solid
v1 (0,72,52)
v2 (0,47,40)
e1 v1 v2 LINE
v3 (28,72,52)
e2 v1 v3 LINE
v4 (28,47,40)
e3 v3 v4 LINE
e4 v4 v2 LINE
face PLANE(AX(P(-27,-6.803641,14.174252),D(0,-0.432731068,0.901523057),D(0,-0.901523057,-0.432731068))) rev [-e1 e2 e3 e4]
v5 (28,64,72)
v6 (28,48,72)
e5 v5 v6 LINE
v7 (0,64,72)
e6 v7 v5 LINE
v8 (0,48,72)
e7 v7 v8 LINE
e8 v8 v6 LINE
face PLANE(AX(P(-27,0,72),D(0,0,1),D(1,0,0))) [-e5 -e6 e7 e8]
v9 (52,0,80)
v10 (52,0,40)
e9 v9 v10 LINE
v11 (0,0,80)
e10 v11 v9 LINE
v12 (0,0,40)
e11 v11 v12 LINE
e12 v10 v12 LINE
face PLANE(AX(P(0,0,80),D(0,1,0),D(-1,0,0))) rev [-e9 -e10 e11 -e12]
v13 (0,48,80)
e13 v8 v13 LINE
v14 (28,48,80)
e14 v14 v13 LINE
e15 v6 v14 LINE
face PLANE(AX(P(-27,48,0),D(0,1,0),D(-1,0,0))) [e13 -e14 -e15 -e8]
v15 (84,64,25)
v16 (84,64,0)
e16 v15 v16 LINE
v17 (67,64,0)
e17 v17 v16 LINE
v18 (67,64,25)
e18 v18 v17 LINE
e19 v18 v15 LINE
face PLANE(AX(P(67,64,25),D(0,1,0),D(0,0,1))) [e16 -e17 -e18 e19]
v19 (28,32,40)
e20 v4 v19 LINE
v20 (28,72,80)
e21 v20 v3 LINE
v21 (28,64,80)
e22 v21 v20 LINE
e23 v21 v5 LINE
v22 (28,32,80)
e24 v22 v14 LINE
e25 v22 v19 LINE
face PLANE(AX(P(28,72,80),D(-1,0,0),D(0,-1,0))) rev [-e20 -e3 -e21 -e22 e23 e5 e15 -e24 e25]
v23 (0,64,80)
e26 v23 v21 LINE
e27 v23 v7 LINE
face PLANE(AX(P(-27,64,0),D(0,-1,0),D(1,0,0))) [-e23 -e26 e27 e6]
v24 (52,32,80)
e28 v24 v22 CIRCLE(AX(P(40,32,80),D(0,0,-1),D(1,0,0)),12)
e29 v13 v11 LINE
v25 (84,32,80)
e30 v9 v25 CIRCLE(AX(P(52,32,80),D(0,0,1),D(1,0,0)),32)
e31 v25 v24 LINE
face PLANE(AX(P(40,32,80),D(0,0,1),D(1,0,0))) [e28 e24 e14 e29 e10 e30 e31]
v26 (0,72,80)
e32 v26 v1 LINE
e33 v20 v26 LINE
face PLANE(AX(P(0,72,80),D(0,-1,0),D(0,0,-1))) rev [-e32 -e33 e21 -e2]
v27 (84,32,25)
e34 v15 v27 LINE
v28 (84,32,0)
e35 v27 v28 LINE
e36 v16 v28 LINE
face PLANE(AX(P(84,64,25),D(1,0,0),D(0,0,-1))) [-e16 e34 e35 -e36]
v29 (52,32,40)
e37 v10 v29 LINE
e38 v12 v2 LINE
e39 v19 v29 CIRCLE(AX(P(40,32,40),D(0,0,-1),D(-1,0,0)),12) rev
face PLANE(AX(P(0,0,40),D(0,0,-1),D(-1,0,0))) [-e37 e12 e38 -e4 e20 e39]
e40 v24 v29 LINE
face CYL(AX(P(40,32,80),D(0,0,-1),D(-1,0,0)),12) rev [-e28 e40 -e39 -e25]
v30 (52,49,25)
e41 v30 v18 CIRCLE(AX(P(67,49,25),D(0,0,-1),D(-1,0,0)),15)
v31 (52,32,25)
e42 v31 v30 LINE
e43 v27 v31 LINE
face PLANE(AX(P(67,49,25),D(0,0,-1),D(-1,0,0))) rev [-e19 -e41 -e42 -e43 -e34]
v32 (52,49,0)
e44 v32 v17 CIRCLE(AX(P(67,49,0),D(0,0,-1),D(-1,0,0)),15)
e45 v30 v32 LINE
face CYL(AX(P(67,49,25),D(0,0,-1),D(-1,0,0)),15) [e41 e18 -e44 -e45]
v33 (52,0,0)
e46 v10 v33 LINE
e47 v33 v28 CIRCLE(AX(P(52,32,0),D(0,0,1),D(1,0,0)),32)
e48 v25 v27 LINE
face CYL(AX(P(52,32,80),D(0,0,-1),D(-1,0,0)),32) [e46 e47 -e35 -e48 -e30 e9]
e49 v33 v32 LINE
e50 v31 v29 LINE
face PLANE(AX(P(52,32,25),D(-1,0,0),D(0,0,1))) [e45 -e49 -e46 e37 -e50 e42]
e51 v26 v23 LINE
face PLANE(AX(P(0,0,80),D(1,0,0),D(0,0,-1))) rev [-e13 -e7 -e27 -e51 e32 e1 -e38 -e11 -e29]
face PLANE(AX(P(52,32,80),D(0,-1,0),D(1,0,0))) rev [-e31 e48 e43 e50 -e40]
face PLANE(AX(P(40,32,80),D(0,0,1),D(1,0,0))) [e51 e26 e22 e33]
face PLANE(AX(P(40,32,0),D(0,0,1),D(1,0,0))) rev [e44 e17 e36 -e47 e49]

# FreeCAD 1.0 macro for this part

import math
import FreeCAD as App
import Part
import Sketcher
from FreeCAD import Vector


def add_polygon(sketch, points):
    """Adds a closed chain of lines whose ends are joined by coincident constraints."""
    first, n = sketch.GeometryCount, len(points)
    for a, b in zip(points, points[1:] + points[:1]):
        sketch.addGeometry(Part.LineSegment(App.Vector(*a, 0), App.Vector(*b, 0)), False)
    for i in range(n):
        sketch.addConstraint(Sketcher.Constraint("Coincident", first + i, 2, first + (i + 1) % n, 1))

doc = App.newDocument("Part")
body = doc.addObject("PartDesign::Body", "Body")

# Sketch on XY plane
sketch1 = body.newObject("Sketcher::SketchObject", "Sketch")
sketch1.AttachmentSupport = (doc.getObject("XY_Plane"), [""])
sketch1.MapMode = "FlatFace"
sketch1.addGeometry(Part.LineSegment(Vector(0, 0, 0), Vector(52, 0, 0)), False)
sketch1.addGeometry(Part.ArcOfCircle(Part.Circle(Vector(52, 32, 0), Vector(0, 0, 1), 32), math.radians(-90), math.radians(0)), False)
sketch1.addGeometry(Part.LineSegment(Vector(84, 32, 0), Vector(52, 32, 0)), False)
sketch1.addGeometry(Part.ArcOfCircle(Part.Circle(Vector(40, 32, 0), Vector(0, 0, 1), 12), math.radians(180), math.radians(360)), False)
sketch1.addGeometry(Part.LineSegment(Vector(28, 32, 0), Vector(28, 72, 0)), False)
sketch1.addGeometry(Part.LineSegment(Vector(28, 72, 0), Vector(0, 72, 0)), False)
sketch1.addGeometry(Part.LineSegment(Vector(0, 72, 0), Vector(0, 0, 0)), False)
sketch1.addConstraint(Sketcher.Constraint("Tangent", 0, 2, 1, 1))
sketch1.addConstraint(Sketcher.Constraint("Coincident", 1, 2, 2, 1))
sketch1.addConstraint(Sketcher.Constraint("Coincident", 2, 2, 3, 2))
sketch1.addConstraint(Sketcher.Constraint("Tangent", 3, 1, 4, 1))
sketch1.addConstraint(Sketcher.Constraint("Coincident", 4, 2, 5, 1))
sketch1.addConstraint(Sketcher.Constraint("Coincident", 5, 2, 6, 1))
sketch1.addConstraint(Sketcher.Constraint("Coincident", 6, 2, 0, 1))
sketch1.addConstraint(Sketcher.Constraint("Horizontal", 0))
sketch1.addConstraint(Sketcher.Constraint("Horizontal", 2))
sketch1.addConstraint(Sketcher.Constraint("Vertical", 4))
sketch1.addConstraint(Sketcher.Constraint("Horizontal", 5))
sketch1.addConstraint(Sketcher.Constraint("Vertical", 6))
sketch1.addConstraint(Sketcher.Constraint("Coincident", 6, 2, -1, 1))
sketch1.addConstraint(Sketcher.Constraint("Coincident", 2, 2, 1, 3))
sketch1.addConstraint(Sketcher.Constraint("Horizontal", 1, 3, 3, 3))
sketch1.addConstraint(Sketcher.Constraint("Radius", 1, 32.0))
sketch1.addConstraint(Sketcher.Constraint("Radius", 3, 12.0))
sketch1.addConstraint(Sketcher.Constraint("DistanceX", 0, 1, 0, 2, 52.0))
sketch1.addConstraint(Sketcher.Constraint("DistanceY", 4, 1, 4, 2, 40.0))
pad1 = body.newObject("PartDesign::Pad", "Pad")
pad1.Profile = sketch1
pad1.Length = 80

# Sketch on XY plane
sketch2 = body.newObject("Sketcher::SketchObject", "Sketch001")
sketch2.AttachmentSupport = (doc.getObject("XY_Plane"), [""])
sketch2.MapMode = "FlatFace"
sketch2.addGeometry(Part.LineSegment(Vector(52, 32, 0), Vector(52, 49, 0)), False)
sketch2.addGeometry(Part.ArcOfCircle(Part.Circle(Vector(67, 49, 0), Vector(0, 0, 1), 15), math.radians(90), math.radians(180)), False)
sketch2.addGeometry(Part.LineSegment(Vector(67, 64, 0), Vector(84, 64, 0)), False)
sketch2.addGeometry(Part.LineSegment(Vector(84, 64, 0), Vector(84, 32, 0)), False)
sketch2.addGeometry(Part.LineSegment(Vector(84, 32, 0), Vector(52, 32, 0)), False)
sketch2.addConstraint(Sketcher.Constraint("Tangent", 0, 2, 1, 2))
sketch2.addConstraint(Sketcher.Constraint("Tangent", 1, 1, 2, 1))
sketch2.addConstraint(Sketcher.Constraint("Coincident", 2, 2, 3, 1))
sketch2.addConstraint(Sketcher.Constraint("Coincident", 3, 2, 4, 1))
sketch2.addConstraint(Sketcher.Constraint("Coincident", 4, 2, 0, 1))
sketch2.addConstraint(Sketcher.Constraint("Vertical", 0))
sketch2.addConstraint(Sketcher.Constraint("Horizontal", 2))
sketch2.addConstraint(Sketcher.Constraint("Vertical", 3))
sketch2.addConstraint(Sketcher.Constraint("Horizontal", 4))
sketch2.addConstraint(Sketcher.Constraint("Equal", 2, 0))
sketch2.addConstraint(Sketcher.Constraint("Radius", 1, 15.0))
sketch2.addConstraint(Sketcher.Constraint("DistanceX", 2, 1, 2, 2, 17.0))
sketch2.addConstraint(Sketcher.Constraint("DistanceX", -1, 1, 1, 3, 67.0))
sketch2.addConstraint(Sketcher.Constraint("DistanceY", -1, 1, 1, 3, 49.0))
pad2 = body.newObject("PartDesign::Pad", "Pad001")
pad2.Profile = sketch2
pad2.Length = 25

# Sketch on XZ plane
sketch3 = body.newObject("Sketcher::SketchObject", "Sketch002")
sketch3.AttachmentSupport = (doc.getObject("XZ_Plane"), [""])
sketch3.MapMode = "FlatFace"
sketch3.AttachmentOffset = App.Placement(Vector(0, 0, -72), App.Rotation())
add_polygon(sketch3, [(0, 0), (0, 40), (52, 40), (52, 0)])  # lines 0-3
sketch3.addConstraint(Sketcher.Constraint("Vertical", 0))
sketch3.addConstraint(Sketcher.Constraint("Horizontal", 1))
sketch3.addConstraint(Sketcher.Constraint("Vertical", 2))
sketch3.addConstraint(Sketcher.Constraint("Horizontal", 3))
sketch3.addConstraint(Sketcher.Constraint("Coincident", 3, 2, -1, 1))
sketch3.addConstraint(Sketcher.Constraint("DistanceX", 1, 1, 1, 2, 52.0))
sketch3.addConstraint(Sketcher.Constraint("DistanceY", 0, 1, 0, 2, 40.0))
pocket1 = body.newObject("PartDesign::Pocket", "Pocket")
pocket1.Profile = sketch3
pocket1.Type = "ThroughAll"
pocket1.Reversed = True

# Sketch on YZ plane
sketch4 = body.newObject("Sketcher::SketchObject", "Sketch003")
sketch4.AttachmentSupport = (doc.getObject("YZ_Plane"), [""])
sketch4.MapMode = "FlatFace"
sketch4.AttachmentOffset = App.Placement(Vector(0, 0, 28), App.Rotation())
add_polygon(sketch4, [(72, 40), (72, 52), (47, 40)])  # lines 0-2
add_polygon(sketch4, [(64, 80), (48, 80), (48, 72), (64, 72)])  # lines 3-6
sketch4.addConstraint(Sketcher.Constraint("Vertical", 0))
sketch4.addConstraint(Sketcher.Constraint("Horizontal", 2))
sketch4.addConstraint(Sketcher.Constraint("Horizontal", 3))
sketch4.addConstraint(Sketcher.Constraint("Vertical", 4))
sketch4.addConstraint(Sketcher.Constraint("Horizontal", 5))
sketch4.addConstraint(Sketcher.Constraint("Vertical", 6))
sketch4.addConstraint(Sketcher.Constraint("DistanceX", 2, 1, 2, 2, 25.0))
sketch4.addConstraint(Sketcher.Constraint("DistanceX", 3, 2, 3, 1, 16.0))
sketch4.addConstraint(Sketcher.Constraint("DistanceY", 0, 1, 0, 2, 12.0))
sketch4.addConstraint(Sketcher.Constraint("DistanceY", 4, 2, 4, 1, 8.0))
sketch4.addConstraint(Sketcher.Constraint("DistanceX", -1, 1, 0, 2, 72.0))
sketch4.addConstraint(Sketcher.Constraint("DistanceY", -1, 1, 0, 2, 52.0))
sketch4.addConstraint(Sketcher.Constraint("DistanceX", -1, 1, 3, 2, 48.0))
sketch4.addConstraint(Sketcher.Constraint("DistanceY", -1, 1, 3, 2, 80.0))
pocket2 = body.newObject("PartDesign::Pocket", "Pocket001")
pocket2.Profile = sketch4
pocket2.Length = 55

doc.recompute()
